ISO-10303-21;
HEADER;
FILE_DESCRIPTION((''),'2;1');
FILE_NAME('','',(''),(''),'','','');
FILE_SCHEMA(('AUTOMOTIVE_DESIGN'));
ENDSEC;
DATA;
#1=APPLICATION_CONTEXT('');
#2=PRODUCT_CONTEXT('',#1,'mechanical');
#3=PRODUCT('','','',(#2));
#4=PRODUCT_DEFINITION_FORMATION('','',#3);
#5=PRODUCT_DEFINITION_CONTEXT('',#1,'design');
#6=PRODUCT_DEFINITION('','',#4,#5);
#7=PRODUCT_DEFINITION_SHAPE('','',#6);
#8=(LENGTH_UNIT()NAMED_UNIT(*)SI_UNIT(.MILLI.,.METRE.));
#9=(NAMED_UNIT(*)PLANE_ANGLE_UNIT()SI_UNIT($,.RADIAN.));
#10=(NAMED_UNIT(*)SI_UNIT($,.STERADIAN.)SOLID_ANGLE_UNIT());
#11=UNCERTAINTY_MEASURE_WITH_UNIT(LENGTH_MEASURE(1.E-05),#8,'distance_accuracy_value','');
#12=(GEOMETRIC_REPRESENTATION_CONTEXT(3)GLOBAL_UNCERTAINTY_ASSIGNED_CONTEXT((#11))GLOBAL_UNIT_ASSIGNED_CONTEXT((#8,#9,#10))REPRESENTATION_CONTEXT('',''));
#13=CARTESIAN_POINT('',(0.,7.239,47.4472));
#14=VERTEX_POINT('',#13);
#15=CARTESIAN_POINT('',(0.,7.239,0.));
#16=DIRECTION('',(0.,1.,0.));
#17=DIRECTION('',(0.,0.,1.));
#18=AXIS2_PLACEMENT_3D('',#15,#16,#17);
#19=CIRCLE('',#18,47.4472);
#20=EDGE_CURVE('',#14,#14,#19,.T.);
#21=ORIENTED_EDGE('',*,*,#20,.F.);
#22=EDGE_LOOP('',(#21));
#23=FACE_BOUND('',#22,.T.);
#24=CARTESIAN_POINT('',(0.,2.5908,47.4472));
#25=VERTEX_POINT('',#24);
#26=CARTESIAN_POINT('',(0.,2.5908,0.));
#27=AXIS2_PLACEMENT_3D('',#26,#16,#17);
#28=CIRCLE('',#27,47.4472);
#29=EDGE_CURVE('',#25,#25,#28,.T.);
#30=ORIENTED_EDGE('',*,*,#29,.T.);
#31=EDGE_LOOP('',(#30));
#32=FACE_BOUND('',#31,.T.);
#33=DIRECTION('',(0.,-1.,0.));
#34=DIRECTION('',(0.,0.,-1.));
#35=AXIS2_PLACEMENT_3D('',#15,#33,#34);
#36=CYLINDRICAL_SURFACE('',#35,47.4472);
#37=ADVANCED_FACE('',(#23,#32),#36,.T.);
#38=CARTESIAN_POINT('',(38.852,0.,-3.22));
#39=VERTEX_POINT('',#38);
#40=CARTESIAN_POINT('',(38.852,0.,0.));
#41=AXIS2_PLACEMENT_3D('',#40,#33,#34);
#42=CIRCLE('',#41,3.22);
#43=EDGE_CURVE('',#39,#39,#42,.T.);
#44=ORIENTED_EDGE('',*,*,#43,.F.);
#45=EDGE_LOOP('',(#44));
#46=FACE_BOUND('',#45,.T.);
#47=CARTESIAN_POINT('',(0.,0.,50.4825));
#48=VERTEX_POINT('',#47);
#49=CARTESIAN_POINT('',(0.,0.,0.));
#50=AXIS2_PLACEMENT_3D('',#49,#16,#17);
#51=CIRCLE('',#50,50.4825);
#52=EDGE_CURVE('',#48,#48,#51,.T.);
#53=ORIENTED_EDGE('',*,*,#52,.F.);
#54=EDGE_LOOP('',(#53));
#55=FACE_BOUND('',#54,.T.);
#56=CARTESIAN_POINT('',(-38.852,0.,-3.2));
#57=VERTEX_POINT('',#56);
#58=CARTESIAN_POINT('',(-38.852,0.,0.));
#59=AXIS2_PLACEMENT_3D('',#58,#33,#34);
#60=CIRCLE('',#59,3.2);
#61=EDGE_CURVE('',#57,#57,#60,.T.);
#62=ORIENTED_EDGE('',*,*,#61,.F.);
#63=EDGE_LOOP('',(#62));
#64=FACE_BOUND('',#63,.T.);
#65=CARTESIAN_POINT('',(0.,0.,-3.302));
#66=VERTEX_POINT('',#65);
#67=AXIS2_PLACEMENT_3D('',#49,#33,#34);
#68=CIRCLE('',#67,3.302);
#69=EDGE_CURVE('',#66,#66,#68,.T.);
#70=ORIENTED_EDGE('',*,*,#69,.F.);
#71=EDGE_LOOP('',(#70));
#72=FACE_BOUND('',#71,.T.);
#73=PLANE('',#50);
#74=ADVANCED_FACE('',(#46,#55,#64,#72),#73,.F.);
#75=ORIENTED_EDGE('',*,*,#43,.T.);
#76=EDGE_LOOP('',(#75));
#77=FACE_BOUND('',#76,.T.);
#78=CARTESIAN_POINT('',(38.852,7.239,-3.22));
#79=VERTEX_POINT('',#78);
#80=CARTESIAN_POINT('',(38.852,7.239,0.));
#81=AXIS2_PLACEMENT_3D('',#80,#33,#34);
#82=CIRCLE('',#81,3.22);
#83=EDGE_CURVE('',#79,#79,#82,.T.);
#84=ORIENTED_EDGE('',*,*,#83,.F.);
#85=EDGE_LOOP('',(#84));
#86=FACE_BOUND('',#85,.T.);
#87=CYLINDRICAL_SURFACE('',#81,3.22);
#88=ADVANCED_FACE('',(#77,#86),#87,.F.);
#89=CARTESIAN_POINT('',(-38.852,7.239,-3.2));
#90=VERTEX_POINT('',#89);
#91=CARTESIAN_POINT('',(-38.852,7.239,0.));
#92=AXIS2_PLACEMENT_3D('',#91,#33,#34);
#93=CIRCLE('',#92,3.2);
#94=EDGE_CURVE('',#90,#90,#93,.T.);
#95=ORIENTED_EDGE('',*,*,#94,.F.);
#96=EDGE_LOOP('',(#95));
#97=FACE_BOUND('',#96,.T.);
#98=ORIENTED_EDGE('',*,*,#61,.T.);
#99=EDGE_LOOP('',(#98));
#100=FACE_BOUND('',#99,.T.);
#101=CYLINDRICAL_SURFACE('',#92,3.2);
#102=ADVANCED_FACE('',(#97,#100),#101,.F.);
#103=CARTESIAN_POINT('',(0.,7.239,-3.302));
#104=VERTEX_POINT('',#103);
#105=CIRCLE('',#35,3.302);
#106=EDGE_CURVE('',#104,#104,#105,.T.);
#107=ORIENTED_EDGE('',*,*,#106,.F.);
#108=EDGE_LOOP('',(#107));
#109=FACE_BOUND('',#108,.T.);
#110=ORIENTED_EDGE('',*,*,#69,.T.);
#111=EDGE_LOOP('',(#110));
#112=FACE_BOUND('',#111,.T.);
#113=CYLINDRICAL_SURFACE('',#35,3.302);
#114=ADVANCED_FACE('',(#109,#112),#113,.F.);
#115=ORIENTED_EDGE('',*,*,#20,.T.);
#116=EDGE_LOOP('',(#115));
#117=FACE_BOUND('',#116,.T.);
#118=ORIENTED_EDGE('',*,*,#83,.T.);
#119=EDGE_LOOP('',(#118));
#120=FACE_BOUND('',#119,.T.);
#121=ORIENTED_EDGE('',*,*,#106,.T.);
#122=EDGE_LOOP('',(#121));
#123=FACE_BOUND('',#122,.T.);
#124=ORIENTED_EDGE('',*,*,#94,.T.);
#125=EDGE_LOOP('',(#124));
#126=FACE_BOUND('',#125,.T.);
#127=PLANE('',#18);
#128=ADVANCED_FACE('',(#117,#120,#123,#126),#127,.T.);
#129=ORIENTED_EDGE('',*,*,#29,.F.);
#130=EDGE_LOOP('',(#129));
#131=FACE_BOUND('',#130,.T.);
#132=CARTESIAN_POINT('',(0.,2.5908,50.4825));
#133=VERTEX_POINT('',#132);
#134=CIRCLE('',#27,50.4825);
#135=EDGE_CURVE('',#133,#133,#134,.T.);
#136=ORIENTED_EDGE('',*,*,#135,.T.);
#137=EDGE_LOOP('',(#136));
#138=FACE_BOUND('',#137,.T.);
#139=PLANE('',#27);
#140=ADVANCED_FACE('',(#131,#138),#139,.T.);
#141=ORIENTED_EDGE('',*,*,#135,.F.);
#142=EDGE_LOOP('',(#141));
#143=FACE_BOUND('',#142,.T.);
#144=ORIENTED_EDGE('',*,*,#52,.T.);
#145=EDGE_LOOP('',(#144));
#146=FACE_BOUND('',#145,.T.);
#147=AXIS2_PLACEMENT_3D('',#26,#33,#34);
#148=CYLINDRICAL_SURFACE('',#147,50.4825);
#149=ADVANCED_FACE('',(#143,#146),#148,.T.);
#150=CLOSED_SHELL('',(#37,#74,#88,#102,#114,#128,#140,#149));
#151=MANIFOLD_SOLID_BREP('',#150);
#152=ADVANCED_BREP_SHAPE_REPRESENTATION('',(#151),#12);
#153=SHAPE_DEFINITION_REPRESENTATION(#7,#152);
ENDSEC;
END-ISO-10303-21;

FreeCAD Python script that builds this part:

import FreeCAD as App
import Part
import Sketcher
Q = App.Units.Quantity

doc = App.newDocument("Part")
body = doc.addObject("PartDesign::Body", "Body")

sketch1 = body.newObject("Sketcher::SketchObject", "Sketch")
sketch1.AttachmentSupport = (doc.getObject("XZ_Plane"), [""])
sketch1.MapMode = "FlatFace"
sketch1.addGeometry(Part.Circle(App.Vector(0, 0, 0), App.Vector(0, 0, 1), 50), False)
sketch1.addConstraint(Sketcher.Constraint("Coincident", 0, 3, -1, 1))
sketch1.addConstraint(Sketcher.Constraint("Diameter", 0, Q("3.975 in")))
pad1 = body.newObject("PartDesign::Pad", "Pad")
pad1.Profile = sketch1
pad1.Length = Q("0.102 in")
pad1.Reversed = True

sketch2 = body.newObject("Sketcher::SketchObject", "Sketch001")
sketch2.AttachmentSupport = (doc.getObject("XZ_Plane"), [""])
sketch2.MapMode = "FlatFace"
sketch2.AttachmentOffset = App.Placement(App.Vector(0, 0, -0.102 * 25.4), App.Rotation())
sketch2.addGeometry(Part.Circle(App.Vector(0, 0, 0), App.Vector(0, 0, 1), 47), False)
sketch2.addConstraint(Sketcher.Constraint("Coincident", 0, 3, -1, 1))
sketch2.addConstraint(Sketcher.Constraint("Diameter", 0, Q("3.736 in")))
pad2 = body.newObject("PartDesign::Pad", "Pad001")
pad2.Profile = sketch2
pad2.Length = Q("0.183 in")
pad2.Reversed = True

sketch3 = body.newObject("Sketcher::SketchObject", "Sketch002")
sketch3.AttachmentSupport = (doc.getObject("XZ_Plane"), [""])
sketch3.MapMode = "FlatFace"
sketch3.addGeometry(Part.Circle(App.Vector(-38.9, 0, 0), App.Vector(0, 0, 1), 3.2), False)
sketch3.addGeometry(Part.Circle(App.Vector(38.9, 0, 0), App.Vector(0, 0, 1), 3.2), False)
sketch3.addGeometry(Part.Circle(App.Vector(0, 0, 0), App.Vector(0, 0, 1), 3.3), False)
sketch3.addConstraint(Sketcher.Constraint("Coincident", 2, 3, -1, 1))
sketch3.addConstraint(Sketcher.Constraint("Symmetric", 0, 3, 1, 3, -1, 1))
sketch3.addConstraint(Sketcher.Constraint("PointOnObject", 0, 3, -1))
sketch3.addConstraint(Sketcher.Constraint("Diameter", 2, Q("0.26 in")))
sketch3.addConstraint(Sketcher.Constraint("Diameter", 0, 6.4))
sketch3.addConstraint(Sketcher.Constraint("Diameter", 1, 6.44))
sketch3.addConstraint(Sketcher.Constraint("DistanceX", 0, 3, -1, 1, 38.852))
pocket1 = body.newObject("PartDesign::Pocket", "Pocket")
pocket1.Profile = sketch3
pocket1.Type = "ThroughAll"

doc.recompute()
